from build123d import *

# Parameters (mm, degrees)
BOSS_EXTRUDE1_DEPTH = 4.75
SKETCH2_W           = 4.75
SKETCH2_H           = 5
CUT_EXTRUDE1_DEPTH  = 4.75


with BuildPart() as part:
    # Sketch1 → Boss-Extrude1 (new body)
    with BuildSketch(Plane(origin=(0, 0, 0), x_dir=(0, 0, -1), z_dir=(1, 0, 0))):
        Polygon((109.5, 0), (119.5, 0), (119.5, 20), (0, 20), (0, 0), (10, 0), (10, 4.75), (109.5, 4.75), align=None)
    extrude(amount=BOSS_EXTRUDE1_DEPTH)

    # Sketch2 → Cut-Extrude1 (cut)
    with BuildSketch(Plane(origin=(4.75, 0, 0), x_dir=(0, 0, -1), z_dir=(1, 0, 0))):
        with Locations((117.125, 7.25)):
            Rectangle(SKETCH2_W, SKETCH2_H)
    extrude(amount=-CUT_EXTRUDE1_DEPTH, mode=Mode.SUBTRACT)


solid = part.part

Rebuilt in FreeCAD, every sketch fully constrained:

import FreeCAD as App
import Part
import Sketcher

doc = App.newDocument("Part")
params = doc.addObject("Spreadsheet::Sheet", "Params")
for row, (alias, value) in enumerate([
    ("sketch1_width", "20 mm"),
    ("sketch1_height", "10 mm"),
    ("sketch1_height2", "119.5 mm"),
    ("sketch1_width2", "4.75 mm"),
    ("pad1_length", "4.75 mm"),
    ("sketch2_width", "5 mm"),
    ("sketch2_height", "4.75 mm"),
    ("pocket1_length", "4.75 mm"),
], start=1):
    params.set(f"A{row}", alias)
    params.set(f"B{row}", "=" + value)
    params.setAlias(f"B{row}", alias)

body = doc.addObject("PartDesign::Body", "Body")

sketch1 = body.newObject("Sketcher::SketchObject", "Sketch")
sketch1.AttachmentSupport = (doc.getObject("YZ_Plane"), [""])
sketch1.MapMode = "FlatFace"
sketch1.addGeometry([
    Part.LineSegment(App.Vector(0, -109.5, 0), App.Vector(0, -119.5, 0)),
    Part.LineSegment(App.Vector(0, -119.5, 0), App.Vector(20, -119.5, 0)),
    Part.LineSegment(App.Vector(20, -119.5, 0), App.Vector(20, 0, 0)),
    Part.LineSegment(App.Vector(20, 0, 0), App.Vector(0, 0, 0)),
    Part.LineSegment(App.Vector(0, 0, 0), App.Vector(0, -10, 0)),
    Part.LineSegment(App.Vector(0, -10, 0), App.Vector(4.8, -10, 0)),
    Part.LineSegment(App.Vector(4.8, -10, 0), App.Vector(4.8, -109.5, 0)),
    Part.LineSegment(App.Vector(4.8, -109.5, 0), App.Vector(0, -109.5, 0)),
], False)
sketch1.addConstraint([
    Sketcher.Constraint("Coincident", 0, 2, 1, 1),
    Sketcher.Constraint("Coincident", 1, 2, 2, 1),
    Sketcher.Constraint("Coincident", 2, 2, 3, 1),
    Sketcher.Constraint("Coincident", 3, 2, 4, 1),
    Sketcher.Constraint("Coincident", 4, 2, 5, 1),
    Sketcher.Constraint("Coincident", 5, 2, 6, 1),
    Sketcher.Constraint("Coincident", 6, 2, 7, 1),
    Sketcher.Constraint("Coincident", 7, 2, 0, 1),
    Sketcher.Constraint("Vertical", 0),
    Sketcher.Constraint("Horizontal", 1),
    Sketcher.Constraint("Vertical", 2),
    Sketcher.Constraint("Horizontal", 3),
    Sketcher.Constraint("Vertical", 4),
    Sketcher.Constraint("Horizontal", 5),
    Sketcher.Constraint("Vertical", 6),
    Sketcher.Constraint("Horizontal", 7),
    Sketcher.Constraint("Coincident", 3, 2, -1, 1),
    Sketcher.Constraint("PointOnObject", 0, 2, -2),
    Sketcher.Constraint("Equal", 0, 4),
    Sketcher.Constraint("DistanceX", 1, 1, 1, 2, 20.0),
    Sketcher.Constraint("DistanceY", 0, 2, 0, 1, 10.0),
    Sketcher.Constraint("DistanceY", 2, 1, 2, 2, 119.5),
    Sketcher.Constraint("DistanceX", 5, 1, 5, 2, 4.75),
])
sketch1.setExpression("Constraints[19]", "Params.sketch1_width")
sketch1.setExpression("Constraints[20]", "Params.sketch1_height")
sketch1.setExpression("Constraints[21]", "Params.sketch1_height2")
sketch1.setExpression("Constraints[22]", "Params.sketch1_width2")
pad1 = body.newObject("PartDesign::Pad", "Pad")
pad1.Profile = sketch1
pad1.setExpression("Length", "Params.pad1_length")

sketch2 = body.newObject("Sketcher::SketchObject", "Sketch001")
sketch2.AttachmentSupport = (doc.getObject("YZ_Plane"), [""])
sketch2.MapMode = "FlatFace"
sketch2.AttachmentOffset = App.Placement(App.Vector(0, 0, 4.75), App.Rotation())
sketch2.addGeometry([
    Part.LineSegment(App.Vector(9.8, -114.8, 0), App.Vector(4.8, -114.8, 0)),
    Part.LineSegment(App.Vector(4.8, -114.8, 0), App.Vector(4.8, -119.5, 0)),
    Part.LineSegment(App.Vector(4.8, -119.5, 0), App.Vector(9.8, -119.5, 0)),
    Part.LineSegment(App.Vector(9.8, -119.5, 0), App.Vector(9.8, -114.8, 0)),
], False)
sketch2.addConstraint([
    Sketcher.Constraint("Coincident", 0, 2, 1, 1),
    Sketcher.Constraint("Coincident", 1, 2, 2, 1),
    Sketcher.Constraint("Coincident", 2, 2, 3, 1),
    Sketcher.Constraint("Coincident", 3, 2, 0, 1),
    Sketcher.Constraint("Horizontal", 0),
    Sketcher.Constraint("Vertical", 1),
    Sketcher.Constraint("Horizontal", 2),
    Sketcher.Constraint("Vertical", 3),
    Sketcher.Constraint("DistanceX", 0, 2, 0, 1, 5.0),
    Sketcher.Constraint("DistanceY", 1, 2, 1, 1, 4.75),
    Sketcher.Constraint("DistanceY", 1, 2, -1, 1, 119.5),
    Sketcher.Constraint("DistanceX", -1, 1, 0, 2, 4.75),
])
sketch2.setExpression("Constraints[8]", "Params.sketch2_width")
sketch2.setExpression("Constraints[9]", "Params.sketch2_height")
pocket1 = body.newObject("PartDesign::Pocket", "Pocket")
pocket1.Profile = sketch2
pocket1.setExpression("Length", "Params.pocket1_length")

doc.recompute()
